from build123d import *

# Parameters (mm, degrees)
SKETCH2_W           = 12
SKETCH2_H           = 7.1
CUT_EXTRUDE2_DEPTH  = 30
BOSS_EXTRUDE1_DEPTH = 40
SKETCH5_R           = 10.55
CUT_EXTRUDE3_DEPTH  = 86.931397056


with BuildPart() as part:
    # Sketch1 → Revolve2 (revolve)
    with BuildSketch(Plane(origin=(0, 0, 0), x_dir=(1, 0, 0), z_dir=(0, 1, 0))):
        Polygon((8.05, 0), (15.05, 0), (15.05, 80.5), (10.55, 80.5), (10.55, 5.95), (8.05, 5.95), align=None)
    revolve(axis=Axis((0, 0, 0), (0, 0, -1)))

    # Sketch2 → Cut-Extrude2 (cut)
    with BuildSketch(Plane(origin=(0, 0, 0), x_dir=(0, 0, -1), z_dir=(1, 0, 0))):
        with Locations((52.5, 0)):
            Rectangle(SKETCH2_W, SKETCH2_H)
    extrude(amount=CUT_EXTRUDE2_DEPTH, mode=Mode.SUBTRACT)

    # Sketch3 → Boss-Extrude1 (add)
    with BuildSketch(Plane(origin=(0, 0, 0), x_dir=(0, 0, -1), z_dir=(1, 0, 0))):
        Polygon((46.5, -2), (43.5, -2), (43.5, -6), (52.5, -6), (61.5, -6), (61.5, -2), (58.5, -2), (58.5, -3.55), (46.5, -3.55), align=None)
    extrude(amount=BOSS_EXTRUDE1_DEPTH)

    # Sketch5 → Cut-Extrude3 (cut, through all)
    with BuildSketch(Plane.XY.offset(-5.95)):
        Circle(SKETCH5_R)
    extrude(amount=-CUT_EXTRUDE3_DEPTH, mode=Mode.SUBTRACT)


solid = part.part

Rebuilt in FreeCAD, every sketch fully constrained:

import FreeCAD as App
import Part
import Sketcher
Q = App.Units.Quantity


def add_polygon(sketch, points):
    """Adds a closed chain of lines whose ends are joined by coincident constraints."""
    first, n = sketch.GeometryCount, len(points)
    for a, b in zip(points, points[1:] + points[:1]):
        sketch.addGeometry(Part.LineSegment(App.Vector(*a, 0), App.Vector(*b, 0)), False)
    for i in range(n):
        sketch.addConstraint(Sketcher.Constraint("Coincident", first + i, 2, first + (i + 1) % n, 1))

doc = App.newDocument("Part")
body = doc.addObject("PartDesign::Body", "Body")

# Sketch on XZ plane
sketch1 = body.newObject("Sketcher::SketchObject", "Sketch")
sketch1.AttachmentSupport = (doc.getObject("XZ_Plane"), [""])
sketch1.MapMode = "FlatFace"
add_polygon(sketch1, [(8.1, 0), (15.1, 0), (15.1, -80.5), (10.6, -80.5), (10.6, -6), (8.1, -6)])  # lines 0-5
sketch1.addConstraint([
    Sketcher.Constraint("Horizontal", 0),
    Sketcher.Constraint("Vertical", 1),
    Sketcher.Constraint("Horizontal", 2),
    Sketcher.Constraint("Vertical", 3),
    Sketcher.Constraint("Horizontal", 4),
    Sketcher.Constraint("Vertical", 5),
    Sketcher.Constraint("PointOnObject", 0, 2, -1),
    Sketcher.Constraint("DistanceX", 0, 1, 0, 2, Q("7 mm")),
    Sketcher.Constraint("DistanceX", 2, 2, 2, 1, Q("4.5 mm")),
    Sketcher.Constraint("DistanceY", 1, 2, 1, 1, Q("80.5 mm")),
    Sketcher.Constraint("DistanceY", 3, 1, 3, 2, Q("74.55 mm")),
    Sketcher.Constraint("DistanceX", -1, 1, 0, 2, Q("15.05 mm")),
])
revolution = body.newObject("PartDesign::Revolution", "Revolution")
revolution.Profile = sketch1
revolution.ReferenceAxis = (sketch1, ["V_Axis"])
revolution.Angle = 360

# Sketch on YZ plane
sketch2 = body.newObject("Sketcher::SketchObject", "Sketch001")
sketch2.AttachmentSupport = (doc.getObject("YZ_Plane"), [""])
sketch2.MapMode = "FlatFace"
add_polygon(sketch2, [(4, -46), (-4, -46), (-4, -58), (4, -58)])  # lines 0-3
sketch2.addConstraint([
    Sketcher.Constraint("Horizontal", 0),
    Sketcher.Constraint("Vertical", 1),
    Sketcher.Constraint("Horizontal", 2),
    Sketcher.Constraint("Vertical", 3),
    Sketcher.Constraint("DistanceY", 1, 2, 1, 1, Q("12 mm")),
    Sketcher.Constraint("DistanceX", 0, 2, 0, 1, Q("7.1 mm")),
    Sketcher.Constraint("DistanceY", 0, 2, -1, 1, Q("46.5 mm")),
    Sketcher.Constraint("DistanceX", 0, 2, -1, 1, Q("3.55 mm")),
])
pocket1 = body.newObject("PartDesign::Pocket", "Pocket")
pocket1.Profile = sketch2
pocket1.Length = 30
pocket1.Reversed = True

# Sketch on YZ plane
sketch3 = body.newObject("Sketcher::SketchObject", "Sketch002")
sketch3.AttachmentSupport = (doc.getObject("YZ_Plane"), [""])
sketch3.MapMode = "FlatFace"
add_polygon(sketch3, [(-2, -46.5), (-2, -43.5), (-6, -43.5), (-6, -61.5), (-2, -61.5), (-2, -58.5), (-3.5, -58.5), (-3.5, -46.5)])  # lines 0-7
sketch3.addConstraint([
    Sketcher.Constraint("Vertical", 0),
    Sketcher.Constraint("Horizontal", 1),
    Sketcher.Constraint("Vertical", 2),
    Sketcher.Constraint("Horizontal", 3),
    Sketcher.Constraint("Vertical", 4),
    Sketcher.Constraint("Horizontal", 5),
    Sketcher.Constraint("Vertical", 6),
    Sketcher.Constraint("Horizontal", 7),
    Sketcher.Constraint("Vertical", 0, 2, 3, 2),
    Sketcher.Constraint("Equal", 0, 4),
    Sketcher.Constraint("DistanceX", 1, 2, 1, 1, Q("4 mm")),
    Sketcher.Constraint("DistanceY", 0, 1, 0, 2, Q("3 mm")),
    Sketcher.Constraint("DistanceY", 2, 2, 2, 1, Q("18 mm")),
    Sketcher.Constraint("DistanceX", 0, 2, -1, 1, Q("2 mm")),
    Sketcher.Constraint("DistanceX", 5, 2, 5, 1, Q("1.55 mm")),
    Sketcher.Constraint("DistanceY", 0, 2, -1, 1, Q("43.5 mm")),
])
pad1 = body.newObject("PartDesign::Pad", "Pad")
pad1.Profile = sketch3
pad1.Length = 40

# Sketch on XY plane
sketch4 = body.newObject("Sketcher::SketchObject", "Sketch003")
sketch4.AttachmentSupport = (doc.getObject("XY_Plane"), [""])
sketch4.MapMode = "FlatFace"
sketch4.AttachmentOffset = App.Placement(App.Vector(0, 0, -5.95), App.Rotation())
sketch4.addGeometry(Part.Circle(App.Vector(0, 0, 0), App.Vector(0, 0, 1), 11), False)
sketch4.addConstraint([
    Sketcher.Constraint("Coincident", 0, 3, -1, 1),
    Sketcher.Constraint("Diameter", 0, Q("21.1 mm")),
])
pocket2 = body.newObject("PartDesign::Pocket", "Pocket001")
pocket2.Profile = sketch4
pocket2.Type = "ThroughAll"

doc.recompute()
